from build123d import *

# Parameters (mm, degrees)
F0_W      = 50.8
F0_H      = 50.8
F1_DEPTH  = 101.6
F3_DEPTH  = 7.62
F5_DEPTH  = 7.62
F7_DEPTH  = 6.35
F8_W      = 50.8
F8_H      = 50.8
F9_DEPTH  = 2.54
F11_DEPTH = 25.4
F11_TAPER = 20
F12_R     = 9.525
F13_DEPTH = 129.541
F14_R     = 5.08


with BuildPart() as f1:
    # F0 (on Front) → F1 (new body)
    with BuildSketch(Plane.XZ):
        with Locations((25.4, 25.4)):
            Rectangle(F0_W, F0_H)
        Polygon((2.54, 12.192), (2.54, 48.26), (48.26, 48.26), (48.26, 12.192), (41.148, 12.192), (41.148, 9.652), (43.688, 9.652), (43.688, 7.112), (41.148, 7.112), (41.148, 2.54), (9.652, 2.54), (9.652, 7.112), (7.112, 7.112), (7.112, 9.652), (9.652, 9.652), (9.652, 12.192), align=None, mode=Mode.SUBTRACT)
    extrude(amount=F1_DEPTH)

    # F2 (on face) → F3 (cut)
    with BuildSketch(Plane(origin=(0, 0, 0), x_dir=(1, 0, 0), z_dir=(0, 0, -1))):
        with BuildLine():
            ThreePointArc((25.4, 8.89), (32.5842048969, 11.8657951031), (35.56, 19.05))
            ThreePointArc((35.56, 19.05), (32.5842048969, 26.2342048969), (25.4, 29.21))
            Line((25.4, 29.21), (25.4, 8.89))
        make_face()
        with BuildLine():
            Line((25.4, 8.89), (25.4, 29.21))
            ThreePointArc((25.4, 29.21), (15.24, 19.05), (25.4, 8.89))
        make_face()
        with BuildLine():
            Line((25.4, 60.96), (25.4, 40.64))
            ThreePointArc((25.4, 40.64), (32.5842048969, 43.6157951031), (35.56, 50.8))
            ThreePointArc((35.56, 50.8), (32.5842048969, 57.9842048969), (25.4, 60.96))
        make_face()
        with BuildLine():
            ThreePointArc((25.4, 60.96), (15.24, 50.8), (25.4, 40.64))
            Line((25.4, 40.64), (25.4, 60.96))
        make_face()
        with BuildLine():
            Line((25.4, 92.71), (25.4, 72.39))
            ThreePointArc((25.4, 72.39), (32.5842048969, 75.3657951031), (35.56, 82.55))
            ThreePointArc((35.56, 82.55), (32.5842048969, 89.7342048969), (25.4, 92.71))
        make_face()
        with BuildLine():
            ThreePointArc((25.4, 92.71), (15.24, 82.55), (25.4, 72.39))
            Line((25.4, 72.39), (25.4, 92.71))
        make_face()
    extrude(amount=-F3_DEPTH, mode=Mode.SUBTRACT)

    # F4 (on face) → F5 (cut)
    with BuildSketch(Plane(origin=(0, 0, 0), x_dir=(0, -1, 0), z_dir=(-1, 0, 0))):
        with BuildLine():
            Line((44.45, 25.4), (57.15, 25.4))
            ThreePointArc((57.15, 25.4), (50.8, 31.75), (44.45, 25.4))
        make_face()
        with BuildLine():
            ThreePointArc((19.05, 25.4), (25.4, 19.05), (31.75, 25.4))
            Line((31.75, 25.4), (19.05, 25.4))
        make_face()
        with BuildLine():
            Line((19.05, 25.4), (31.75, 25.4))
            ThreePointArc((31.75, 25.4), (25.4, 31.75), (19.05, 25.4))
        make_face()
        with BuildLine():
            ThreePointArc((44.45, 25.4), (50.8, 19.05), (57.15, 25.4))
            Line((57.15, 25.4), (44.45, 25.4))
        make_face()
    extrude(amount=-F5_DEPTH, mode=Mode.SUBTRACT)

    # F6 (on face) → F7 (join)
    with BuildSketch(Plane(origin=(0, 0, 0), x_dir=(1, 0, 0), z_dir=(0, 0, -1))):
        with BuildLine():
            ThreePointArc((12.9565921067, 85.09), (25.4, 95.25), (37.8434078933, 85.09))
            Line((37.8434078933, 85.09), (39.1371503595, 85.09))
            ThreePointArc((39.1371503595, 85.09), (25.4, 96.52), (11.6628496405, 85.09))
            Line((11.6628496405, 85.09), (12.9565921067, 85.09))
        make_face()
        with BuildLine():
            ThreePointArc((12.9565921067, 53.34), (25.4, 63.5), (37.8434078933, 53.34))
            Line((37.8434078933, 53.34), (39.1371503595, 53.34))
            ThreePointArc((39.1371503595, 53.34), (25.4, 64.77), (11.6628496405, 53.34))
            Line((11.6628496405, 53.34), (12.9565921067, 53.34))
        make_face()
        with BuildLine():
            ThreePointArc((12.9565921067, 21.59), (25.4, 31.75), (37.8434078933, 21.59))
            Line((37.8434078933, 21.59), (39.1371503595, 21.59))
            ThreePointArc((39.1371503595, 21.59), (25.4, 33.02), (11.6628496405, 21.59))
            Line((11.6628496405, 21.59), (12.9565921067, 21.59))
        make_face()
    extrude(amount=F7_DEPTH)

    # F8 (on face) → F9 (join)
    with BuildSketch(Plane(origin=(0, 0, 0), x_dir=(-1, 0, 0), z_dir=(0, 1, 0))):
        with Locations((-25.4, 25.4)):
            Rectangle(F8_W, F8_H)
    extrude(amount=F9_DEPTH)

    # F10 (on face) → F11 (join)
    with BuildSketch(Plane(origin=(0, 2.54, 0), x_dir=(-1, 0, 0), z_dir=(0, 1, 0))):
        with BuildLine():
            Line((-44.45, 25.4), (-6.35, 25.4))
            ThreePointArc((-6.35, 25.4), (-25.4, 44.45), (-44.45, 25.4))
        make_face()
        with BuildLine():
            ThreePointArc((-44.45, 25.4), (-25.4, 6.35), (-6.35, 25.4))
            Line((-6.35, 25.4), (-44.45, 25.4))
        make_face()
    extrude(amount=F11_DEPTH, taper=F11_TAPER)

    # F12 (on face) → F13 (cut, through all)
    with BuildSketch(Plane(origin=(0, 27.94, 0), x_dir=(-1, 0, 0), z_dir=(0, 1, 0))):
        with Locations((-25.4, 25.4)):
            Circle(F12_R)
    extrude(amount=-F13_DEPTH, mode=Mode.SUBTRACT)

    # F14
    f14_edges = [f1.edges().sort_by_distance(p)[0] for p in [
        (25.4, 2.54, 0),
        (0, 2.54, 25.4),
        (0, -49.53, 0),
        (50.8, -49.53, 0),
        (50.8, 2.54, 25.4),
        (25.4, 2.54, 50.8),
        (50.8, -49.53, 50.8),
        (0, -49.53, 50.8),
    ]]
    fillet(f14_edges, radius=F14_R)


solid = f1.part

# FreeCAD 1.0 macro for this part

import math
import FreeCAD as App
import Part
import Sketcher
from FreeCAD import Vector
Q = App.Units.Quantity


def edges_at(feature, points):
    """Names of the edges that pass closest to the given points."""
    edges = feature.Shape.Edges
    near = lambda p: min(range(len(edges)), key=lambda i: edges[i].distToShape(Part.Vertex(*p))[0])
    return sorted({f"Edge{near(p) + 1}" for p in points})

doc = App.newDocument("Part")
body = doc.addObject("PartDesign::Body", "Body")

sketch1 = body.newObject("Sketcher::SketchObject", "Sketch")
sketch1.AttachmentSupport = (doc.getObject("XZ_Plane"), [""])
sketch1.MapMode = "FlatFace"
sketch1.addGeometry([
    Part.LineSegment(Vector(0, 50.8, 0), Vector(0, 0, 0)),
    Part.LineSegment(Vector(0, 0, 0), Vector(50.8, 0, 0)),
    Part.LineSegment(Vector(50.8, 0, 0), Vector(50.8, 50.8, 0)),
    Part.LineSegment(Vector(50.8, 50.8, 0), Vector(0, 50.8, 0)),
    Part.LineSegment(Vector(9.7, 12.2, 0), Vector(2.5, 12.2, 0)),
    Part.LineSegment(Vector(2.5, 12.2, 0), Vector(2.5, 48.3, 0)),
    Part.LineSegment(Vector(2.5, 48.3, 0), Vector(48.3, 48.3, 0)),
    Part.LineSegment(Vector(48.3, 48.3, 0), Vector(48.3, 12.2, 0)),
    Part.LineSegment(Vector(48.3, 12.2, 0), Vector(41.1, 12.2, 0)),
    Part.LineSegment(Vector(41.1, 12.2, 0), Vector(41.1, 9.7, 0)),
    Part.LineSegment(Vector(41.1, 9.7, 0), Vector(43.7, 9.7, 0)),
    Part.LineSegment(Vector(43.7, 9.7, 0), Vector(43.7, 7.1, 0)),
    Part.LineSegment(Vector(43.7, 7.1, 0), Vector(41.1, 7.1, 0)),
    Part.LineSegment(Vector(41.1, 7.1, 0), Vector(41.1, 2.5, 0)),
    Part.LineSegment(Vector(41.1, 2.5, 0), Vector(9.7, 2.5, 0)),
    Part.LineSegment(Vector(9.7, 2.5, 0), Vector(9.7, 7.1, 0)),
    Part.LineSegment(Vector(9.7, 7.1, 0), Vector(7.1, 7.1, 0)),
    Part.LineSegment(Vector(7.1, 7.1, 0), Vector(7.1, 9.7, 0)),
    Part.LineSegment(Vector(7.1, 9.7, 0), Vector(9.7, 9.7, 0)),
    Part.LineSegment(Vector(9.7, 9.7, 0), Vector(9.7, 12.2, 0)),
], False)
sketch1.addConstraint([
    Sketcher.Constraint("Coincident", 0, 2, 1, 1),
    Sketcher.Constraint("Coincident", 1, 2, 2, 1),
    Sketcher.Constraint("Coincident", 2, 2, 3, 1),
    Sketcher.Constraint("Coincident", 3, 2, 0, 1),
    Sketcher.Constraint("Coincident", 4, 2, 5, 1),
    Sketcher.Constraint("Coincident", 5, 2, 6, 1),
    Sketcher.Constraint("Coincident", 6, 2, 7, 1),
    Sketcher.Constraint("Coincident", 7, 2, 8, 1),
    Sketcher.Constraint("Coincident", 8, 2, 9, 1),
    Sketcher.Constraint("Coincident", 9, 2, 10, 1),
    Sketcher.Constraint("Coincident", 10, 2, 11, 1),
    Sketcher.Constraint("Coincident", 11, 2, 12, 1),
    Sketcher.Constraint("Coincident", 12, 2, 13, 1),
    Sketcher.Constraint("Coincident", 13, 2, 14, 1),
    Sketcher.Constraint("Coincident", 14, 2, 15, 1),
    Sketcher.Constraint("Coincident", 15, 2, 16, 1),
    Sketcher.Constraint("Coincident", 16, 2, 17, 1),
    Sketcher.Constraint("Coincident", 17, 2, 18, 1),
    Sketcher.Constraint("Coincident", 18, 2, 19, 1),
    Sketcher.Constraint("Coincident", 19, 2, 4, 1),
    Sketcher.Constraint("Vertical", 0),
    Sketcher.Constraint("Horizontal", 1),
    Sketcher.Constraint("Vertical", 2),
    Sketcher.Constraint("Horizontal", 3),
    Sketcher.Constraint("Horizontal", 4),
    Sketcher.Constraint("Vertical", 5),
    Sketcher.Constraint("Horizontal", 6),
    Sketcher.Constraint("Vertical", 7),
    Sketcher.Constraint("Horizontal", 8),
    Sketcher.Constraint("Vertical", 9),
    Sketcher.Constraint("Horizontal", 10),
    Sketcher.Constraint("Vertical", 11),
    Sketcher.Constraint("Horizontal", 12),
    Sketcher.Constraint("Vertical", 13),
    Sketcher.Constraint("Horizontal", 14),
    Sketcher.Constraint("Vertical", 15),
    Sketcher.Constraint("Horizontal", 16),
    Sketcher.Constraint("Vertical", 17),
    Sketcher.Constraint("Horizontal", 18),
    Sketcher.Constraint("Vertical", 19),
    Sketcher.Constraint("Coincident", 0, 2, -1, 1),
    Sketcher.Constraint("Horizontal", 4, 2, 7, 2),
    Sketcher.Constraint("Horizontal", 12, 2, 15, 2),
    Sketcher.Constraint("Horizontal", 10, 2, 17, 2),
    Sketcher.Constraint("Vertical", 9, 2, 12, 2),
    Sketcher.Constraint("Vertical", 15, 2, 18, 2),
    Sketcher.Constraint("Equal", 4, 8),
    Sketcher.Constraint("Equal", 12, 16),
    Sketcher.Constraint("Equal", 3, 0),
    Sketcher.Constraint("Equal", 18, 9),
    Sketcher.Constraint("Equal", 9, 11),
    Sketcher.Constraint("DistanceX", 1, 1, 1, 2, Q("2 in")),
    Sketcher.Constraint("DistanceX", 6, 1, 6, 2, Q("1.8 in")),
    Sketcher.Constraint("DistanceX", 10, 1, 10, 2, Q("0.1 in")),
    Sketcher.Constraint("DistanceX", 4, 2, 4, 1, Q("0.28 in")),
    Sketcher.Constraint("DistanceY", 5, 1, 5, 2, Q("1.42 in")),
    Sketcher.Constraint("DistanceY", 13, 2, 13, 1, Q("0.18 in")),
    Sketcher.Constraint("DistanceX", -1, 1, 4, 2, Q("0.1 in")),
    Sketcher.Constraint("DistanceY", -1, 1, 5, 2, Q("1.9 in")),
])
pad1 = body.newObject("PartDesign::Pad", "Pad")
pad1.Profile = sketch1
pad1.Length = Q("4 in")

sketch2 = body.newObject("Sketcher::SketchObject", "Sketch001")
sketch2.AttachmentSupport = (doc.getObject("XY_Plane"), [""])
sketch2.MapMode = "FlatFace"
sketch2.addGeometry([
    Part.ArcOfCircle(Part.Circle(Vector(25, -19, 0), Vector(0, 0, 1), 10), math.radians(0), math.radians(90)),
    Part.ArcOfCircle(Part.Circle(Vector(25, -19, 0), Vector(0, 0, 1), 10), math.radians(-90), math.radians(0)),
    Part.ArcOfCircle(Part.Circle(Vector(25, -19, 0), Vector(0, 0, 1), 10), math.radians(90), math.radians(270)),
    Part.ArcOfCircle(Part.Circle(Vector(25, -51, 0), Vector(0, 0, 1), 10), math.radians(0), math.radians(90)),
    Part.ArcOfCircle(Part.Circle(Vector(25, -51, 0), Vector(0, 0, 1), 10), math.radians(-90), math.radians(0)),
    Part.ArcOfCircle(Part.Circle(Vector(25, -51, 0), Vector(0, 0, 1), 10), math.radians(90), math.radians(270)),
    Part.ArcOfCircle(Part.Circle(Vector(25, -83, 0), Vector(0, 0, 1), 10), math.radians(0), math.radians(90)),
    Part.ArcOfCircle(Part.Circle(Vector(25, -83, 0), Vector(0, 0, 1), 10), math.radians(-90), math.radians(0)),
    Part.ArcOfCircle(Part.Circle(Vector(25, -83, 0), Vector(0, 0, 1), 10), math.radians(90), math.radians(270)),
], False)
sketch2.addConstraint([
    Sketcher.Constraint("Tangent", 0, 1, 1, 2),
    Sketcher.Constraint("Tangent", 1, 1, 2, 2),
    Sketcher.Constraint("Tangent", 2, 1, 0, 2),
    Sketcher.Constraint("Tangent", 3, 1, 4, 2),
    Sketcher.Constraint("Tangent", 4, 1, 5, 2),
    Sketcher.Constraint("Tangent", 5, 1, 3, 2),
    Sketcher.Constraint("Tangent", 6, 1, 7, 2),
    Sketcher.Constraint("Tangent", 7, 1, 8, 2),
    Sketcher.Constraint("Tangent", 8, 1, 6, 2),
    Sketcher.Constraint("Equal", 2, 3),
    Sketcher.Constraint("Equal", 5, 6),
    Sketcher.Constraint("Horizontal", 2, 3, 0, 1),
    Sketcher.Constraint("Horizontal", 5, 3, 3, 1),
    Sketcher.Constraint("Horizontal", 8, 3, 6, 1),
    Sketcher.Constraint("Vertical", 2, 3, 3, 3),
    Sketcher.Constraint("Vertical", 5, 3, 6, 3),
    Sketcher.Constraint("Vertical", 8, 3, 1, 1),
    Sketcher.Constraint("Vertical", 1, 1, 2, 1),
    Sketcher.Constraint("Vertical", 2, 1, 4, 1),
    Sketcher.Constraint("Vertical", 4, 1, 5, 1),
    Sketcher.Constraint("Vertical", 5, 1, 7, 1),
    Sketcher.Constraint("Vertical", 7, 1, 8, 1),
    Sketcher.Constraint("Radius", 0, Q("0.4 in")),
    Sketcher.Constraint("DistanceX", -1, 1, 0, 3, Q("1 in")),
    Sketcher.Constraint("DistanceY", 3, 3, -1, 1, Q("2 in")),
    Sketcher.Constraint("DistanceY", 6, 3, 0, 3, Q("2.5 in")),
    Sketcher.Constraint("DistanceY", 0, 3, -1, 1, Q("0.75 in")),
])
pocket1 = body.newObject("PartDesign::Pocket", "Pocket")
pocket1.Profile = sketch2
pocket1.Length = Q("0.3 in")
pocket1.Reversed = True

sketch3 = body.newObject("Sketcher::SketchObject", "Sketch002")
sketch3.AttachmentSupport = (doc.getObject("YZ_Plane"), [""])
sketch3.MapMode = "FlatFace"
sketch3.addGeometry([
    Part.Circle(Vector(-51, 25, 0), Vector(0, 0, 1), 6),
    Part.Circle(Vector(-25, 25, 0), Vector(0, 0, 1), 6),
], False)
sketch3.addConstraint([
    Sketcher.Constraint("Equal", 0, 1),
    Sketcher.Constraint("Horizontal", 0, 3, 1, 3),
    Sketcher.Constraint("Diameter", 0, Q("0.5 in")),
    Sketcher.Constraint("DistanceX", 0, 3, -1, 1, Q("2 in")),
    Sketcher.Constraint("DistanceY", -1, 1, 0, 3, Q("1 in")),
    Sketcher.Constraint("DistanceX", 1, 3, -1, 1, Q("1 in")),
])
pocket2 = body.newObject("PartDesign::Pocket", "Pocket001")
pocket2.Profile = sketch3
pocket2.Length = Q("0.3 in")
pocket2.Reversed = True

sketch4 = body.newObject("Sketcher::SketchObject", "Sketch003")
sketch4.AttachmentSupport = (doc.getObject("XY_Plane"), [""])
sketch4.MapMode = "FlatFace"
sketch4.addGeometry([
    Part.ArcOfCircle(Part.Circle(Vector(25.4, -82.5, 0), Vector(0, 0, 1), 12.7), math.radians(-168), math.radians(-12)),
    Part.LineSegment(Vector(37.8, -85.1, 0), Vector(39.1, -85.1, 0)),
    Part.ArcOfCircle(Part.Circle(Vector(25.4, -82.5, 0), Vector(0, 0, 1), 14), math.radians(-170), math.radians(-10)),
    Part.LineSegment(Vector(11.7, -85.1, 0), Vector(13, -85.1, 0)),
    Part.ArcOfCircle(Part.Circle(Vector(25.4, -50.8, 0), Vector(0, 0, 1), 12.7), math.radians(-168), math.radians(-12)),
    Part.LineSegment(Vector(37.8, -53.3, 0), Vector(39.1, -53.3, 0)),
    Part.ArcOfCircle(Part.Circle(Vector(25.4, -50.8, 0), Vector(0, 0, 1), 14), math.radians(-170), math.radians(-10)),
    Part.LineSegment(Vector(11.7, -53.3, 0), Vector(13, -53.3, 0)),
    Part.ArcOfCircle(Part.Circle(Vector(25.4, -19.1, 0), Vector(0, 0, 1), 12.7), math.radians(-168), math.radians(-12)),
    Part.LineSegment(Vector(37.8, -21.6, 0), Vector(39.1, -21.6, 0)),
    Part.ArcOfCircle(Part.Circle(Vector(25.4, -19.1, 0), Vector(0, 0, 1), 14), math.radians(-170), math.radians(-10)),
    Part.LineSegment(Vector(11.7, -21.6, 0), Vector(13, -21.6, 0)),
], False)
sketch4.addConstraint([
    Sketcher.Constraint("Coincident", 0, 2, 1, 1),
    Sketcher.Constraint("Coincident", 1, 2, 2, 2),
    Sketcher.Constraint("Coincident", 2, 1, 3, 1),
    Sketcher.Constraint("Coincident", 3, 2, 0, 1),
    Sketcher.Constraint("Coincident", 4, 2, 5, 1),
    Sketcher.Constraint("Coincident", 5, 2, 6, 2),
    Sketcher.Constraint("Coincident", 6, 1, 7, 1),
    Sketcher.Constraint("Coincident", 7, 2, 4, 1),
    Sketcher.Constraint("Coincident", 8, 2, 9, 1),
    Sketcher.Constraint("Coincident", 9, 2, 10, 2),
    Sketcher.Constraint("Coincident", 10, 1, 11, 1),
    Sketcher.Constraint("Coincident", 11, 2, 8, 1),
    Sketcher.Constraint("Horizontal", 1),
    Sketcher.Constraint("Horizontal", 3),
    Sketcher.Constraint("Horizontal", 5),
    Sketcher.Constraint("Horizontal", 7),
    Sketcher.Constraint("Horizontal", 9),
    Sketcher.Constraint("Horizontal", 11),
    Sketcher.Constraint("Coincident", 2, 3, 0, 3),
    Sketcher.Constraint("Coincident", 6, 3, 4, 3),
    Sketcher.Constraint("Coincident", 10, 3, 8, 3),
    Sketcher.Constraint("Equal", 0, 4),
    Sketcher.Constraint("Equal", 2, 6),
    Sketcher.Constraint("Equal", 4, 8),
    Sketcher.Constraint("Equal", 6, 10),
    Sketcher.Constraint("Horizontal", 1, 2, 2, 1),
    Sketcher.Constraint("Horizontal", 5, 2, 6, 1),
    Sketcher.Constraint("Horizontal", 9, 2, 10, 1),
    Sketcher.Constraint("Vertical", 2, 3, 4, 3),
    Sketcher.Constraint("Vertical", 6, 3, 8, 3),
    Sketcher.Constraint("Vertical", 0, 2, 4, 2),
    Sketcher.Constraint("Vertical", 4, 2, 8, 2),
    Sketcher.Constraint("Radius", 0, Q("0.5 in")),
    Sketcher.Constraint("Radius", 2, Q("0.55 in")),
    Sketcher.Constraint("DistanceX", -1, 1, 0, 3, Q("1 in")),
    Sketcher.Constraint("DistanceY", 4, 3, -1, 1, Q("2 in")),
    Sketcher.Constraint("DistanceY", 4, 2, -1, 1, Q("2.1 in")),
    Sketcher.Constraint("DistanceY", 0, 3, 8, 3, Q("2.5 in")),
    Sketcher.Constraint("DistanceY", 0, 3, -1, 1, Q("3.25 in")),
])
pad2 = body.newObject("PartDesign::Pad", "Pad001")
pad2.Profile = sketch4
pad2.Length = Q("0.25 in")
pad2.Reversed = True

sketch5 = body.newObject("Sketcher::SketchObject", "Sketch004")
sketch5.AttachmentSupport = (doc.getObject("XZ_Plane"), [""])
sketch5.MapMode = "FlatFace"
sketch5.addGeometry([
    Part.LineSegment(Vector(51, 51, 0), Vector(51, 0, 0)),
    Part.LineSegment(Vector(51, 0, 0), Vector(0, 0, 0)),
    Part.LineSegment(Vector(0, 0, 0), Vector(0, 51, 0)),
    Part.LineSegment(Vector(0, 51, 0), Vector(51, 51, 0)),
], False)
sketch5.addConstraint([
    Sketcher.Constraint("Coincident", 0, 2, 1, 1),
    Sketcher.Constraint("Coincident", 1, 2, 2, 1),
    Sketcher.Constraint("Coincident", 2, 2, 3, 1),
    Sketcher.Constraint("Coincident", 3, 2, 0, 1),
    Sketcher.Constraint("Vertical", 0),
    Sketcher.Constraint("Horizontal", 1),
    Sketcher.Constraint("Vertical", 2),
    Sketcher.Constraint("Horizontal", 3),
    Sketcher.Constraint("Coincident", 1, 2, -1, 1),
    Sketcher.Constraint("Equal", 3, 0),
    Sketcher.Constraint("DistanceX", 1, 2, 1, 1, Q("2 in")),
])
pad3 = body.newObject("PartDesign::Pad", "Pad002")
pad3.Profile = sketch5
pad3.Length = Q("0.1 in")
pad3.Reversed = True

sketch6 = body.newObject("Sketcher::SketchObject", "Sketch005")
sketch6.AttachmentSupport = (doc.getObject("XZ_Plane"), [""])
sketch6.MapMode = "FlatFace"
sketch6.AttachmentOffset = App.Placement(Vector(0, 0, -0.1 * 25.4), App.Rotation())
sketch6.addGeometry(Part.Circle(Vector(25, 25, 0), Vector(0, 0, 1), 19), False)
sketch6.addConstraint([
    Sketcher.Constraint("Diameter", 0, Q("1.5 in")),
    Sketcher.Constraint("DistanceX", -1, 1, 0, 3, Q("1 in")),
    Sketcher.Constraint("DistanceY", -1, 1, 0, 3, Q("1 in")),
])
pad4 = body.newObject("PartDesign::Pad", "Pad003")
pad4.Profile = sketch6
pad4.Length = Q("1 in")
pad4.Reversed = True
pad4.TaperAngle = -20

sketch7 = body.newObject("Sketcher::SketchObject", "Sketch006")
sketch7.AttachmentSupport = (doc.getObject("XZ_Plane"), [""])
sketch7.MapMode = "FlatFace"
sketch7.AttachmentOffset = App.Placement(Vector(0, 0, -1.1 * 25.4), App.Rotation())
sketch7.addGeometry(Part.Circle(Vector(25, 25, 0), Vector(0, 0, 1), 10), False)
sketch7.addConstraint([
    Sketcher.Constraint("Diameter", 0, Q("0.75 in")),
    Sketcher.Constraint("DistanceX", -1, 1, 0, 3, Q("1 in")),
    Sketcher.Constraint("DistanceY", -1, 1, 0, 3, Q("1 in")),
])
pocket3 = body.newObject("PartDesign::Pocket", "Pocket002")
pocket3.Profile = sketch7
pocket3.Type = "ThroughAll"
pocket3.Reversed = True
doc.recompute()

fillet = body.newObject("PartDesign::Fillet", "Fillet")
fillet.Base = (pocket3, edges_at(pocket3, [
    (25.4, 2.54, 0),
    (0, 2.54, 25.4),
    (0, -49.53, 0),
    (50.8, -49.53, 0),
    (50.8, 2.54, 25.4),
    (25.4, 2.54, 50.8),
    (50.8, -49.53, 50.8),
    (0, -49.53, 50.8),
]))
fillet.Radius = Q("0.2 in")

doc.recompute()
